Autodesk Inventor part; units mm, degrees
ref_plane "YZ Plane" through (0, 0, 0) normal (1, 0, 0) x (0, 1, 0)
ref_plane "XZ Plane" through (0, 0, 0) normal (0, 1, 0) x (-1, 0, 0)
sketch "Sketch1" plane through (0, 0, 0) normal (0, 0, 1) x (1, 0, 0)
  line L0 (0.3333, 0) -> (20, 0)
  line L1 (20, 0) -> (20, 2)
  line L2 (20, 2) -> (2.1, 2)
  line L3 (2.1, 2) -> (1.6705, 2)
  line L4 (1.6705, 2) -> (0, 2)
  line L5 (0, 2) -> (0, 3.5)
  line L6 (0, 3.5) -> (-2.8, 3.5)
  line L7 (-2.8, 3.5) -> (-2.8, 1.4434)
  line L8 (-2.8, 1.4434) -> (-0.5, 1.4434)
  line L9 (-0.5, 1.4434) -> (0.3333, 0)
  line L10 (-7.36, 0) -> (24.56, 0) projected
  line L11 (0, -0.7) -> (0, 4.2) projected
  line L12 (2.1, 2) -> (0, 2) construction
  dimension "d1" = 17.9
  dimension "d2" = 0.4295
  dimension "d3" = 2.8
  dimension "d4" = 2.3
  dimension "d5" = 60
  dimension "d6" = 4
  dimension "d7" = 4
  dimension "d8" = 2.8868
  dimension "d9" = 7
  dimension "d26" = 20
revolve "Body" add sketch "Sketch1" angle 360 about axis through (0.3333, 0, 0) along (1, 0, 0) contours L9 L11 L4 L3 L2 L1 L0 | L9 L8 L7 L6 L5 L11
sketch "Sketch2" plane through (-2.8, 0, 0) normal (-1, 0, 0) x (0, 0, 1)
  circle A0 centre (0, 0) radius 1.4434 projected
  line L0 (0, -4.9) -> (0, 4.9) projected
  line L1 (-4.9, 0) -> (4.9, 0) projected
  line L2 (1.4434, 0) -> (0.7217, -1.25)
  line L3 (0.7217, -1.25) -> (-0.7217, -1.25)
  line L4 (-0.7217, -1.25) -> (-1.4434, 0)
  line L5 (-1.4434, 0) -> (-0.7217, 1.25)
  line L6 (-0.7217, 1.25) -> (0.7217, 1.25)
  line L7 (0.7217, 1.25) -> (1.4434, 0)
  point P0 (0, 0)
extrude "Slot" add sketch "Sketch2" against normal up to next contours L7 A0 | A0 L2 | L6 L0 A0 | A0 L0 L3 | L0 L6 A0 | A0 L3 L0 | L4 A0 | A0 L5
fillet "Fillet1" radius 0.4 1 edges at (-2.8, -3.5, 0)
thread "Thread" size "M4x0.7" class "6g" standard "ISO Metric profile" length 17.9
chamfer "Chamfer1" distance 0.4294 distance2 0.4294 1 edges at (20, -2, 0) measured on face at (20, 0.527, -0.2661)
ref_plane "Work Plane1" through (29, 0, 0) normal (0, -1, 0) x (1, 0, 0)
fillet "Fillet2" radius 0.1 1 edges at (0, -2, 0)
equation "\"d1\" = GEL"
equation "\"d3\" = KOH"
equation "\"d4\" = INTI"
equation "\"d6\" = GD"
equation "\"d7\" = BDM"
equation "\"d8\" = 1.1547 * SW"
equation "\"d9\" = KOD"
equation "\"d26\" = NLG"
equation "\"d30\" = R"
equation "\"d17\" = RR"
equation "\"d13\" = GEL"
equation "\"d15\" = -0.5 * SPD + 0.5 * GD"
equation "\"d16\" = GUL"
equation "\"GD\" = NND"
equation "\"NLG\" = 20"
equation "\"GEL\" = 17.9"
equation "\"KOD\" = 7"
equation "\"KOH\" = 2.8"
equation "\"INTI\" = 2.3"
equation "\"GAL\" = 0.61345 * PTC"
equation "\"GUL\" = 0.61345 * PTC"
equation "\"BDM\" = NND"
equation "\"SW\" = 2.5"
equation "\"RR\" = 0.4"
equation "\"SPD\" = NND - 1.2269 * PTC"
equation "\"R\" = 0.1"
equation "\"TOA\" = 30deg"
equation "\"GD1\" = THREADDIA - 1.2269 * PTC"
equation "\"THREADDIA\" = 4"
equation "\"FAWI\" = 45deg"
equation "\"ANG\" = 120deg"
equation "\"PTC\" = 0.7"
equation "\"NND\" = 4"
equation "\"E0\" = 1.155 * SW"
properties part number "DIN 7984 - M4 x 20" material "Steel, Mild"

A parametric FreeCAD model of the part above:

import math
import FreeCAD as App
import Part
import Sketcher
from FreeCAD import Vector
Q = App.Units.Quantity


def edges_at(feature, points):
    """Names of the edges that pass closest to the given points."""
    edges = feature.Shape.Edges
    near = lambda p: min(range(len(edges)), key=lambda i: edges[i].distToShape(Part.Vertex(*p))[0])
    return sorted({f"Edge{near(p) + 1}" for p in points})

doc = App.newDocument("Part")
params = doc.addObject("Spreadsheet::Sheet", "Params")
for row, (alias, value) in enumerate([
    ("sketch1_width", "20 mm"),
    ("sketch1_width2", "2.8 mm"),
    ("sketch1_width3", "2.3 mm"),
    ("sketch1_height", "2 mm"),
    ("sketch1_height2", "1.5 mm"),
    ("revolution_angle", "360 deg"),
    ("fillet_radius", "0.4 mm"),
    ("chamfer_size", "0.4294 mm"),
    ("chamfer_size2", "0.4294 mm"),
    ("fillet2_radius", "0.1 mm"),
], start=1):
    params.set(f"A{row}", alias)
    params.set(f"B{row}", "=" + value)
    params.setAlias(f"B{row}", alias)

body = doc.addObject("PartDesign::Body", "Body")

# Sketch on XY plane
sketch1 = doc.addObject("Sketcher::SketchObject", "Sketch")
body.addObject(sketch1)
sketch1.AttachmentSupport = (doc.XY_Plane, [""])
sketch1.MapMode = "FlatFace"
sketch1.addGeometry(Part.LineSegment(Vector(0.3, 0, 0), Vector(20, 0, 0)), False)
sketch1.addGeometry(Part.LineSegment(Vector(20, 0, 0), Vector(20, 2, 0)), False)
sketch1.addGeometry(Part.LineSegment(Vector(20, 2, 0), Vector(0, 2, 0)), False)
sketch1.addGeometry(Part.LineSegment(Vector(0, 2, 0), Vector(0, 3.5, 0)), False)
sketch1.addGeometry(Part.LineSegment(Vector(0, 3.5, 0), Vector(-2.8, 3.5, 0)), False)
sketch1.addGeometry(Part.LineSegment(Vector(-2.8, 3.5, 0), Vector(-2.8, 1.4, 0)), False)
sketch1.addGeometry(Part.LineSegment(Vector(-2.8, 1.4, 0), Vector(-0.5, 1.4, 0)), False)
sketch1.addGeometry(Part.LineSegment(Vector(-0.5, 1.4, 0), Vector(0.3, 0, 0)), False)
sketch1.addConstraint(Sketcher.Constraint("Coincident", 0, 2, 1, 1))
sketch1.addConstraint(Sketcher.Constraint("Coincident", 1, 2, 2, 1))
sketch1.addConstraint(Sketcher.Constraint("Coincident", 2, 2, 3, 1))
sketch1.addConstraint(Sketcher.Constraint("Coincident", 3, 2, 4, 1))
sketch1.addConstraint(Sketcher.Constraint("Coincident", 4, 2, 5, 1))
sketch1.addConstraint(Sketcher.Constraint("Coincident", 5, 2, 6, 1))
sketch1.addConstraint(Sketcher.Constraint("Coincident", 6, 2, 7, 1))
sketch1.addConstraint(Sketcher.Constraint("Coincident", 7, 2, 0, 1))
sketch1.addConstraint(Sketcher.Constraint("Horizontal", 0))
sketch1.addConstraint(Sketcher.Constraint("Vertical", 1))
sketch1.addConstraint(Sketcher.Constraint("Horizontal", 2))
sketch1.addConstraint(Sketcher.Constraint("Vertical", 3))
sketch1.addConstraint(Sketcher.Constraint("Horizontal", 4))
sketch1.addConstraint(Sketcher.Constraint("Vertical", 5))
sketch1.addConstraint(Sketcher.Constraint("Horizontal", 6))
sketch1.addConstraint(Sketcher.Constraint("PointOnObject", 0, 2, -1))
sketch1.addConstraint(Sketcher.Constraint("PointOnObject", 2, 2, -2))
sketch1.addConstraint(Sketcher.Constraint("DistanceX", 2, 2, 2, 1, Q("20 mm")))
sketch1.addConstraint(Sketcher.Constraint("DistanceX", 4, 2, 4, 1, Q("2.8 mm")))
sketch1.addConstraint(Sketcher.Constraint("DistanceX", 6, 1, 6, 2, Q("2.3 mm")))
sketch1.addConstraint(Sketcher.Constraint("DistanceY", 1, 1, 1, 2, Q("2 mm")))
sketch1.addConstraint(Sketcher.Constraint("DistanceY", 3, 1, 3, 2, Q("1.5 mm")))
sketch1.addConstraint(Sketcher.Constraint("DistanceX", 0, 1, 0, 2, Q("19.6667 mm")))
sketch1.addConstraint(Sketcher.Constraint("DistanceY", 5, 2, 5, 1, Q("2.0566 mm")))
sketch1.setExpression("Constraints[17]", "Params.sketch1_width")
sketch1.setExpression("Constraints[18]", "Params.sketch1_width2")
sketch1.setExpression("Constraints[19]", "Params.sketch1_width3")
sketch1.setExpression("Constraints[20]", "Params.sketch1_height")
sketch1.setExpression("Constraints[21]", "Params.sketch1_height2")
revolution = doc.addObject("PartDesign::Revolution", "Revolution")
body.addObject(revolution)
revolution.Profile = sketch1
revolution.ReferenceAxis = (sketch1, ["H_Axis"])
revolution.setExpression("Angle", "Params.revolution_angle")

# Sketch on YZ plane
sketch2 = doc.addObject("Sketcher::SketchObject", "Sketch001")
body.addObject(sketch2)
sketch2.AttachmentSupport = (doc.YZ_Plane, [""])
sketch2.MapMode = "FlatFace"
sketch2.AttachmentOffset = App.Placement(Vector(0, 0, -2.8), App.Rotation())
sketch2.addGeometry(Part.LineSegment(Vector(1.2, 0.7, 0), Vector(0, 1.4, 0)), False)
sketch2.addGeometry(Part.ArcOfCircle(Part.Circle(Vector(0, 0, 0), Vector(0, 0, 1), 1.4), math.radians(30), math.radians(90)), False)
sketch2.addGeometry(Part.ArcOfCircle(Part.Circle(Vector(0, 0, 0), Vector(0, 0, 1), 1.4), math.radians(90), math.radians(150)), False)
sketch2.addGeometry(Part.LineSegment(Vector(0, 1.4, 0), Vector(-1.2, 0.7, 0)), False)
sketch2.addGeometry(Part.ArcOfCircle(Part.Circle(Vector(0, 0, 0), Vector(0, 0, 1), 1.4), math.radians(-30), math.radians(30)), False)
sketch2.addGeometry(Part.LineSegment(Vector(1.2, 0.7, 0), Vector(1.2, -0.7, 0)), False)
sketch2.addGeometry(Part.LineSegment(Vector(-1.2, 0.7, 0), Vector(-1.2, -0.7, 0)), False)
sketch2.addGeometry(Part.ArcOfCircle(Part.Circle(Vector(0, 0, 0), Vector(0, 0, 1), 1.4), math.radians(150), math.radians(210)), False)
sketch2.addGeometry(Part.LineSegment(Vector(-1.2, -0.7, 0), Vector(0, -1.4, 0)), False)
sketch2.addGeometry(Part.ArcOfCircle(Part.Circle(Vector(0, 0, 0), Vector(0, 0, 1), 1.4), math.radians(-150), math.radians(-90)), False)
sketch2.addGeometry(Part.ArcOfCircle(Part.Circle(Vector(0, 0, 0), Vector(0, 0, 1), 1.4), math.radians(-90), math.radians(-30)), False)
sketch2.addGeometry(Part.LineSegment(Vector(0, -1.4, 0), Vector(1.2, -0.7, 0)), False)
sketch2.addConstraint(Sketcher.Constraint("Coincident", 0, 1, 1, 1))
sketch2.addConstraint(Sketcher.Constraint("Coincident", 1, 2, 0, 2))
sketch2.addConstraint(Sketcher.Constraint("Coincident", 2, 1, 3, 1))
sketch2.addConstraint(Sketcher.Constraint("Coincident", 3, 2, 2, 2))
sketch2.addConstraint(Sketcher.Constraint("Coincident", 4, 1, 5, 2))
sketch2.addConstraint(Sketcher.Constraint("Coincident", 5, 1, 4, 2))
sketch2.addConstraint(Sketcher.Constraint("Coincident", 6, 1, 7, 1))
sketch2.addConstraint(Sketcher.Constraint("Coincident", 7, 2, 6, 2))
sketch2.addConstraint(Sketcher.Constraint("Coincident", 8, 1, 9, 1))
sketch2.addConstraint(Sketcher.Constraint("Coincident", 9, 2, 8, 2))
sketch2.addConstraint(Sketcher.Constraint("Coincident", 10, 1, 11, 1))
sketch2.addConstraint(Sketcher.Constraint("Coincident", 11, 2, 10, 2))
sketch2.addConstraint(Sketcher.Constraint("Vertical", 5))
sketch2.addConstraint(Sketcher.Constraint("Vertical", 6))
sketch2.addConstraint(Sketcher.Constraint("Coincident", 1, 3, -1, 1))
sketch2.addConstraint(Sketcher.Constraint("Coincident", 2, 3, -1, 1))
sketch2.addConstraint(Sketcher.Constraint("Coincident", 4, 3, -1, 1))
sketch2.addConstraint(Sketcher.Constraint("Coincident", 7, 3, -1, 1))
sketch2.addConstraint(Sketcher.Constraint("Coincident", 9, 3, -1, 1))
sketch2.addConstraint(Sketcher.Constraint("Coincident", 10, 3, -1, 1))
sketch2.addConstraint(Sketcher.Constraint("Coincident", 2, 1, 1, 2))
sketch2.addConstraint(Sketcher.Constraint("Coincident", 5, 1, 0, 1))
sketch2.addConstraint(Sketcher.Constraint("Coincident", 6, 1, 3, 2))
sketch2.addConstraint(Sketcher.Constraint("Coincident", 8, 1, 7, 2))
sketch2.addConstraint(Sketcher.Constraint("Coincident", 10, 1, 9, 2))
sketch2.addConstraint(Sketcher.Constraint("PointOnObject", 1, 2, -2))
sketch2.addConstraint(Sketcher.Constraint("PointOnObject", 9, 2, -2))
sketch2.addConstraint(Sketcher.Constraint("Parallel", 0, 8))
sketch2.addConstraint(Sketcher.Constraint("Parallel", 3, 11))
sketch2.addConstraint(Sketcher.Constraint("Angle", 0, Q("149.9996 deg")))
sketch2.addConstraint(Sketcher.Constraint("Radius", 1, Q("1.4434 mm")))
pad1 = doc.addObject("PartDesign::Pad", "Pad")
body.addObject(pad1)
pad1.Profile = sketch2
pad1.Type = "UpToFirst"
doc.recompute()

fillet = doc.addObject("PartDesign::Fillet", "Fillet")
body.addObject(fillet)
fillet.Base = (pad1, edges_at(pad1, [(-2.8, -3.5, 0)]))
fillet.setExpression("Radius", "Params.fillet_radius")
doc.recompute()

chamfer = doc.addObject("PartDesign::Chamfer", "Chamfer")
body.addObject(chamfer)
chamfer.Base = (fillet, edges_at(fillet, [(20, -2, 0)]))
chamfer.ChamferType = "Two distances"
chamfer.setExpression("Size", "Params.chamfer_size")
chamfer.setExpression("Size2", "Params.chamfer_size2")
doc.recompute()

fillet2 = doc.addObject("PartDesign::Fillet", "Fillet001")
body.addObject(fillet2)
fillet2.Base = (chamfer, edges_at(chamfer, [(0, -2, 0)]))
fillet2.setExpression("Radius", "Params.fillet2_radius")

doc.recompute()
